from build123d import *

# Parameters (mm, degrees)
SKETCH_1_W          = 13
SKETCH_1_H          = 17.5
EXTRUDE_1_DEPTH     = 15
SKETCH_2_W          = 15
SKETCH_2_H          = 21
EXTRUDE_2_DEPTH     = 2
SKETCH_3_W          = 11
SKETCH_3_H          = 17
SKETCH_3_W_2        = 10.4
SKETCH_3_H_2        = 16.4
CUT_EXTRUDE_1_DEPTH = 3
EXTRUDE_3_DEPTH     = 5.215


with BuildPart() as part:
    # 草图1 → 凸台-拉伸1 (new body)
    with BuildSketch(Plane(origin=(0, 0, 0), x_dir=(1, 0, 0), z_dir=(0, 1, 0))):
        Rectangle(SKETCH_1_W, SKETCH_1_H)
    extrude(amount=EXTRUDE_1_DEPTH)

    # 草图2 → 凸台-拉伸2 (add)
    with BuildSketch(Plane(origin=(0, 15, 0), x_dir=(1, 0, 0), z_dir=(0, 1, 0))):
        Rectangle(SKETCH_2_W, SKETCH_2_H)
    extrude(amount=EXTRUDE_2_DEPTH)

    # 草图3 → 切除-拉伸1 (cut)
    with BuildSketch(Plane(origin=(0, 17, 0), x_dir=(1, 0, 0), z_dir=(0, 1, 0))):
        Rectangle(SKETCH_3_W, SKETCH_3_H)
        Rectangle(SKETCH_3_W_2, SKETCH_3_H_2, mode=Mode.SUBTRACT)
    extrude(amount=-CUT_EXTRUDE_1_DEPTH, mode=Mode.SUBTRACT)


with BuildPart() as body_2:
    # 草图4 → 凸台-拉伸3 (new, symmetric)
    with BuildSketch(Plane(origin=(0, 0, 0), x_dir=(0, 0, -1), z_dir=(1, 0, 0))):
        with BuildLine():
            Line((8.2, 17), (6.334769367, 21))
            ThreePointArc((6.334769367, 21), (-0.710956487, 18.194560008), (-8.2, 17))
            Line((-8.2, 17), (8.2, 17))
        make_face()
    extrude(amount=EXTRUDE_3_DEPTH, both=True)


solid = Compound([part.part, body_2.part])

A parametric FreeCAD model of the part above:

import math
import FreeCAD as App
import Part
import Sketcher

V = App.Vector
Q = App.Units.Quantity


def add_polygon(sketch, points):
    """Adds a closed chain of lines whose ends are joined by coincident constraints."""
    first, n = sketch.GeometryCount, len(points)
    for a, b in zip(points, points[1:] + points[:1]):
        sketch.addGeometry(Part.LineSegment(App.Vector(*a, 0), App.Vector(*b, 0)), False)
    for i in range(n):
        sketch.addConstraint(Sketcher.Constraint("Coincident", first + i, 2, first + (i + 1) % n, 1))

doc = App.newDocument("Part")
body = doc.addObject("PartDesign::Body", "Body")

# Sketch on XZ plane
sketch1 = body.newObject("Sketcher::SketchObject", "Sketch")
sketch1.AttachmentSupport = (doc.getObject("XZ_Plane"), [""])
sketch1.MapMode = "FlatFace"
add_polygon(sketch1, [(-6, -9), (-6, 9), (6, 9), (6, -9)])  # lines 0-3
sketch1.addConstraint([
    Sketcher.Constraint("Vertical", 0),
    Sketcher.Constraint("Horizontal", 1),
    Sketcher.Constraint("Vertical", 2),
    Sketcher.Constraint("Horizontal", 3),
    Sketcher.Constraint("Symmetric", 0, 2, 2, 2, -1, 1),
    Sketcher.Constraint("DistanceX", 1, 1, 1, 2, 13.0),
    Sketcher.Constraint("DistanceY", 0, 1, 0, 2, 17.5),
])
pad1 = body.newObject("PartDesign::Pad", "Pad")
pad1.Profile = sketch1
pad1.Length = 15
pad1.Reversed = True

# Sketch on XZ plane
sketch2 = body.newObject("Sketcher::SketchObject", "Sketch001")
sketch2.AttachmentSupport = (doc.getObject("XZ_Plane"), [""])
sketch2.MapMode = "FlatFace"
sketch2.AttachmentOffset = App.Placement(V(0, 0, -15), App.Rotation())
add_polygon(sketch2, [(-8, -10), (-8, 10), (8, 10), (8, -10)])  # lines 0-3
sketch2.addConstraint([
    Sketcher.Constraint("Vertical", 0),
    Sketcher.Constraint("Horizontal", 1),
    Sketcher.Constraint("Vertical", 2),
    Sketcher.Constraint("Horizontal", 3),
    Sketcher.Constraint("Symmetric", 0, 2, 2, 2, -1, 1),
    Sketcher.Constraint("DistanceX", 1, 1, 1, 2, 15.0),
    Sketcher.Constraint("DistanceY", 0, 1, 0, 2, 21.0),
])
pad2 = body.newObject("PartDesign::Pad", "Pad001")
pad2.Profile = sketch2
pad2.Length = 2
pad2.Reversed = True

# Sketch on XZ plane
sketch3 = body.newObject("Sketcher::SketchObject", "Sketch002")
sketch3.AttachmentSupport = (doc.getObject("XZ_Plane"), [""])
sketch3.MapMode = "FlatFace"
sketch3.AttachmentOffset = App.Placement(V(0, 0, -17), App.Rotation())
add_polygon(sketch3, [(-6, -8), (-6, 8), (6, 8), (6, -8)])  # lines 0-3
add_polygon(sketch3, [(5, 8), (-5, 8), (-5, -8), (5, -8)])  # lines 4-7
sketch3.addConstraint([
    Sketcher.Constraint("Vertical", 0),
    Sketcher.Constraint("Horizontal", 1),
    Sketcher.Constraint("Vertical", 2),
    Sketcher.Constraint("Horizontal", 3),
    Sketcher.Constraint("Horizontal", 4),
    Sketcher.Constraint("Vertical", 5),
    Sketcher.Constraint("Horizontal", 6),
    Sketcher.Constraint("Vertical", 7),
    Sketcher.Constraint("Symmetric", 0, 2, 2, 2, -1, 1),
    Sketcher.Constraint("Symmetric", 4, 2, 6, 2, -1, 1),
    Sketcher.Constraint("DistanceX", 1, 1, 1, 2, 11.0),
    Sketcher.Constraint("DistanceY", 0, 1, 0, 2, 17.0),
    Sketcher.Constraint("DistanceX", 4, 2, 4, 1, 10.4),
    Sketcher.Constraint("DistanceY", 5, 2, 5, 1, 16.4),
])
pocket1 = body.newObject("PartDesign::Pocket", "Pocket")
pocket1.Profile = sketch3
pocket1.Length = 3
pocket1.Reversed = True
body2 = doc.addObject("PartDesign::Body", "Body001")

# Sketch on YZ plane
sketch4 = body2.newObject("Sketcher::SketchObject", "Sketch003")
sketch4.AttachmentSupport = (doc.getObject("YZ_Plane001"), [""])
sketch4.MapMode = "FlatFace"
sketch4.addGeometry([
    Part.LineSegment(V(17, -8.2, 0), V(21, -6.3, 0)),
    Part.ArcOfCircle(Part.Circle(V(51.4, 9.8, 0), V(0, 0, 1), 34.4), math.radians(-177), math.radians(-152)),
    Part.LineSegment(V(17, 8.2, 0), V(17, -8.2, 0)),
], False)
sketch4.addConstraint([
    Sketcher.Constraint("Coincident", 0, 2, 1, 2),
    Sketcher.Constraint("Coincident", 1, 1, 2, 1),
    Sketcher.Constraint("Coincident", 2, 2, 0, 1),
    Sketcher.Constraint("Vertical", 2),
    Sketcher.Constraint("Angle", 0, Q("25 deg")),
    Sketcher.Constraint("DistanceY", 2, 2, 2, 1, 16.4),
    Sketcher.Constraint("DistanceX", -1, 1, 0, 2, 21.0),
    Sketcher.Constraint("DistanceX", -1, 1, 1, 1, 17.0),
    Sketcher.Constraint("DistanceY", -1, 1, 1, 1, 8.2),
    Sketcher.Constraint("Radius", 1, 34.422945),
])
pad3 = body2.newObject("PartDesign::Pad", "Pad002")
pad3.Profile = sketch4
pad3.Length = 10.43
pad3.Midplane = True

doc.recompute()
